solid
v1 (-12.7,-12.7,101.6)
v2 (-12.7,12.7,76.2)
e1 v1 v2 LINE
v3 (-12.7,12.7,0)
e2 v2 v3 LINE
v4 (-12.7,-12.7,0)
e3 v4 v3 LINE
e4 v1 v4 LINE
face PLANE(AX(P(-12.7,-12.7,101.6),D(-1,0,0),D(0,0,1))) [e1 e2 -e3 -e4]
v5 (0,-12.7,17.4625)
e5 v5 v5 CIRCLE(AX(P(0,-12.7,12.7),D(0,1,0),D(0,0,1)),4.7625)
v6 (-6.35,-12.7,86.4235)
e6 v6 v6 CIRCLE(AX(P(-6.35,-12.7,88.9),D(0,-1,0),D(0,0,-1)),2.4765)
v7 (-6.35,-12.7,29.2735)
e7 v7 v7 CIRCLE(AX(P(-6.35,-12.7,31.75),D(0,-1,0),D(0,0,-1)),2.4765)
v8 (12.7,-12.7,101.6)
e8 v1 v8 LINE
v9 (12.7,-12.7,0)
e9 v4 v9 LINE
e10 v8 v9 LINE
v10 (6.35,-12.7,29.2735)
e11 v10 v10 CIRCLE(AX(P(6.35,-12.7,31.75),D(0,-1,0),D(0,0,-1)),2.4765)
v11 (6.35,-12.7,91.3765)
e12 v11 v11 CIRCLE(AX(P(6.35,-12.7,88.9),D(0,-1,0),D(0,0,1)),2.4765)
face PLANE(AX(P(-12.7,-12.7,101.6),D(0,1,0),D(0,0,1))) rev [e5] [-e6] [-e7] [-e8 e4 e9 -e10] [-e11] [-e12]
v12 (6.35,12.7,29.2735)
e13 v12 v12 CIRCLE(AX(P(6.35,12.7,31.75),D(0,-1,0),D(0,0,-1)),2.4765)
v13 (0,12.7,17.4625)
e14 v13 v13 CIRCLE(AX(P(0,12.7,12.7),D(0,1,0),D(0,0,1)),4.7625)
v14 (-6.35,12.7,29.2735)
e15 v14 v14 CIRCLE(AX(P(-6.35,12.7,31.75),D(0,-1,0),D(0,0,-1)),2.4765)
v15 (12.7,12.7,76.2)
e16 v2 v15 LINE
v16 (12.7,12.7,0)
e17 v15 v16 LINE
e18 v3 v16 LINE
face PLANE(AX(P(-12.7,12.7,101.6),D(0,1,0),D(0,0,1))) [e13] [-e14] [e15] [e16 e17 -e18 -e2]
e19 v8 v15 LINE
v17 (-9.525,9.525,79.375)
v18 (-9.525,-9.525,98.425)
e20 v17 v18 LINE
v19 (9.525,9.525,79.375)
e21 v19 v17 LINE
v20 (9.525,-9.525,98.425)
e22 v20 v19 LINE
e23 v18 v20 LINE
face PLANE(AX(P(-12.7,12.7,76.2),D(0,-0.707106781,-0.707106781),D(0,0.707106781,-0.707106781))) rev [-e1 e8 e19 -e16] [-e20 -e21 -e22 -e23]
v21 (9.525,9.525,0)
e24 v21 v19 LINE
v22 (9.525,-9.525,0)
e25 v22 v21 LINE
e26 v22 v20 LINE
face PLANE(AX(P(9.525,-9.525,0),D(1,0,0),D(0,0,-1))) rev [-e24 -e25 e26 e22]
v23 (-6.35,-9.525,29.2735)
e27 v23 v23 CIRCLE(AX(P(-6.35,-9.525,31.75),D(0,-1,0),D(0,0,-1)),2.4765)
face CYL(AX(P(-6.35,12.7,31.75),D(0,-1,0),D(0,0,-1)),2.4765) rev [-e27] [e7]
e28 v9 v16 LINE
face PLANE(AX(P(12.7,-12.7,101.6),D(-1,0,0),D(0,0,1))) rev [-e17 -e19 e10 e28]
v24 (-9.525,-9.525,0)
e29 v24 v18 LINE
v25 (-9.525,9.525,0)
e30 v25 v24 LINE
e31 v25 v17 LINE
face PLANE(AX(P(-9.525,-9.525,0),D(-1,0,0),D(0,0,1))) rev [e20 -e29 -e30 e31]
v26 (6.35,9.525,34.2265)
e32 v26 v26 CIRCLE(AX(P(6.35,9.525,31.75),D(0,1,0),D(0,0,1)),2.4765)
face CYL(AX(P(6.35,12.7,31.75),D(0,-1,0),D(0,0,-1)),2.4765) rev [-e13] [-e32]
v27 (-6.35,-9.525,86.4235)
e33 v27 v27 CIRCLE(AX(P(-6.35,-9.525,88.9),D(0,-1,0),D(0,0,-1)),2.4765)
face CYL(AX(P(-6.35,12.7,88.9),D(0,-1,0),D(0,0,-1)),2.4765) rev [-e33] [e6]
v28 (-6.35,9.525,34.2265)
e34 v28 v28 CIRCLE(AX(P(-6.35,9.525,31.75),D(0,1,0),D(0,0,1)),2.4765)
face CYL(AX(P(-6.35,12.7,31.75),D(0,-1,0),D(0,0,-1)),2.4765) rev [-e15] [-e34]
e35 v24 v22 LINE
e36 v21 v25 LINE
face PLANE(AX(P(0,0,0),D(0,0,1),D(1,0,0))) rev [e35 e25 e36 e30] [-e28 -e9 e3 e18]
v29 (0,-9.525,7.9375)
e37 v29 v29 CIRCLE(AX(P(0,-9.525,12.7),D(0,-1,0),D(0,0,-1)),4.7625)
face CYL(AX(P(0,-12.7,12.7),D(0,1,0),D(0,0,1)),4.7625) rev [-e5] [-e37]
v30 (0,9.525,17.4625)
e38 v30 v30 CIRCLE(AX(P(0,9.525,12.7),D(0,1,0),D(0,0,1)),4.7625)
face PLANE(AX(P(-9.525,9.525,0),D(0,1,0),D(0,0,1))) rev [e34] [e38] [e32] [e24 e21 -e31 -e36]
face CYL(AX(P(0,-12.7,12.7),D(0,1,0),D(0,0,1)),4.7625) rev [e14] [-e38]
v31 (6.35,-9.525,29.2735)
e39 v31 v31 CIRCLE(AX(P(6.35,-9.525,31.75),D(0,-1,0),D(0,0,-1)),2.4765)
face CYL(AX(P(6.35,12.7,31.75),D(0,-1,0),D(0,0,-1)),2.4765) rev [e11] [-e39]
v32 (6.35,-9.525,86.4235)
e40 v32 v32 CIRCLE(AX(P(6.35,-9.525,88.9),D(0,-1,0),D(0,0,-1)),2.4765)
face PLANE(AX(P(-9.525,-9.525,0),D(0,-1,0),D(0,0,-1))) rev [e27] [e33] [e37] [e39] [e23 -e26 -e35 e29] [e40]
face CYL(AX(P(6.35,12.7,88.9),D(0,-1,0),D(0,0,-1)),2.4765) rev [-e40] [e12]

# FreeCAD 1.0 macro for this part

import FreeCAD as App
import Part
import Sketcher
from FreeCAD import Vector
Q = App.Units.Quantity


def add_polygon(sketch, points):
    """Adds a closed chain of lines whose ends are joined by coincident constraints."""
    first, n = sketch.GeometryCount, len(points)
    for a, b in zip(points, points[1:] + points[:1]):
        sketch.addGeometry(Part.LineSegment(App.Vector(*a, 0), App.Vector(*b, 0)), False)
    for i in range(n):
        sketch.addConstraint(Sketcher.Constraint("Coincident", first + i, 2, first + (i + 1) % n, 1))

doc = App.newDocument("Part")
body = doc.addObject("PartDesign::Body", "Body")

# Sketch on XY plane
sketch1 = body.newObject("Sketcher::SketchObject", "Sketch")
sketch1.AttachmentSupport = (doc.getObject("XY_Plane"), [""])
sketch1.MapMode = "FlatFace"
add_polygon(sketch1, [(-12.7, 12.7), (-12.7, -12.7), (12.7, -12.7), (12.7, 12.7)])  # lines 0-3
sketch1.addConstraint([
    Sketcher.Constraint("Vertical", 0),
    Sketcher.Constraint("Horizontal", 1),
    Sketcher.Constraint("Vertical", 2),
    Sketcher.Constraint("Horizontal", 3),
    Sketcher.Constraint("Symmetric", 0, 2, 2, 2, -1, 1),
    Sketcher.Constraint("Equal", 3, 0),
    Sketcher.Constraint("DistanceX", 1, 1, 1, 2, Q("1 in")),
])
pad1 = body.newObject("PartDesign::Pad", "Pad")
pad1.Profile = sketch1
pad1.Length = Q("4 in")

# Sketch on XY plane
sketch2 = body.newObject("Sketcher::SketchObject", "Sketch001")
sketch2.AttachmentSupport = (doc.getObject("XY_Plane"), [""])
sketch2.MapMode = "FlatFace"
sketch2.AttachmentOffset = App.Placement(Vector(0, 0, 4 * 25.4), App.Rotation())
add_polygon(sketch2, [(-9.525, 9.525), (-9.525, -9.525), (9.525, -9.525), (9.525, 9.525)])  # lines 0-3
sketch2.addConstraint([
    Sketcher.Constraint("Vertical", 0),
    Sketcher.Constraint("Horizontal", 1),
    Sketcher.Constraint("Vertical", 2),
    Sketcher.Constraint("Horizontal", 3),
    Sketcher.Constraint("Symmetric", 0, 2, 2, 2, -1, 1),
    Sketcher.Constraint("Equal", 3, 0),
    Sketcher.Constraint("DistanceX", 1, 1, 1, 2, Q("0.75 in")),
])
pocket1 = body.newObject("PartDesign::Pocket", "Pocket")
pocket1.Profile = sketch2
pocket1.Type = "ThroughAll"

# Sketch on YZ plane
sketch3 = body.newObject("Sketcher::SketchObject", "Sketch002")
sketch3.AttachmentSupport = (doc.getObject("YZ_Plane"), [""])
sketch3.MapMode = "FlatFace"
sketch3.AttachmentOffset = App.Placement(Vector(0, 0, 0.5 * 25.4), App.Rotation())
add_polygon(sketch3, [(12.7, 76.2), (12.7, 101.6), (-12.7, 101.6)])  # lines 0-2
sketch3.addConstraint([
    Sketcher.Constraint("Vertical", 0),
    Sketcher.Constraint("Horizontal", 1),
    Sketcher.Constraint("Equal", 1, 0),
    Sketcher.Constraint("DistanceX", 1, 2, 1, 1, Q("1 in")),
    Sketcher.Constraint("DistanceY", -1, 1, 0, 2, Q("4 in")),
    Sketcher.Constraint("DistanceX", -1, 1, 0, 2, Q("0.5 in")),
])
pocket2 = body.newObject("PartDesign::Pocket", "Pocket001")
pocket2.Profile = sketch3
pocket2.Type = "ThroughAll"

# Sketch on XZ plane
sketch4 = body.newObject("Sketcher::SketchObject", "Sketch003")
sketch4.AttachmentSupport = (doc.getObject("XZ_Plane"), [""])
sketch4.MapMode = "FlatFace"
sketch4.AttachmentOffset = App.Placement(Vector(0, 0, 0.5 * 25.4), App.Rotation())
sketch4.addGeometry([
    Part.Circle(Vector(-6.35, 88.9, 0), Vector(0, 0, 1), 2.4765),
    Part.Circle(Vector(6.35, 88.9, 0), Vector(0, 0, 1), 2.4765),
], False)
sketch4.addConstraint([
    Sketcher.Constraint("Equal", 0, 1),
    Sketcher.Constraint("Symmetric", 0, 3, 1, 3, -2),
    Sketcher.Constraint("Diameter", 0, Q("0.195 in")),
    Sketcher.Constraint("DistanceY", -1, 1, 0, 3, Q("3.5 in")),
    Sketcher.Constraint("DistanceX", 0, 3, 1, 3, Q("0.5 in")),
])
pocket3 = body.newObject("PartDesign::Pocket", "Pocket002")
pocket3.Profile = sketch4
pocket3.Type = "ThroughAll"

# Sketch on XZ plane
sketch5 = body.newObject("Sketcher::SketchObject", "Sketch004")
sketch5.AttachmentSupport = (doc.getObject("XZ_Plane"), [""])
sketch5.MapMode = "FlatFace"
sketch5.AttachmentOffset = App.Placement(Vector(0, 0, -0.5 * 25.4), App.Rotation())
sketch5.addGeometry(Part.Circle(Vector(0, 12.7, 0), Vector(0, 0, 1), 4.7625), False)
sketch5.addConstraint([
    Sketcher.Constraint("PointOnObject", 0, 3, -2),
    Sketcher.Constraint("Diameter", 0, Q("0.375 in")),
    Sketcher.Constraint("DistanceY", -1, 1, 0, 3, Q("0.5 in")),
])
pocket4 = body.newObject("PartDesign::Pocket", "Pocket003")
pocket4.Profile = sketch5
pocket4.Type = "ThroughAll"
pocket4.Reversed = True

# Sketch on XZ plane
sketch6 = body.newObject("Sketcher::SketchObject", "Sketch005")
sketch6.AttachmentSupport = (doc.getObject("XZ_Plane"), [""])
sketch6.MapMode = "FlatFace"
sketch6.AttachmentOffset = App.Placement(Vector(0, 0, 0.5 * 25.4), App.Rotation())
sketch6.addGeometry([
    Part.Circle(Vector(6.35, 31.75, 0), Vector(0, 0, 1), 2.4765),
    Part.Circle(Vector(-6.35, 31.75, 0), Vector(0, 0, 1), 2.4765),
], False)
sketch6.addConstraint([
    Sketcher.Constraint("Equal", 0, 1),
    Sketcher.Constraint("Symmetric", 0, 3, 1, 3, -2),
    Sketcher.Constraint("Diameter", 0, Q("0.195 in")),
    Sketcher.Constraint("DistanceX", 1, 3, 0, 3, Q("0.5 in")),
    Sketcher.Constraint("DistanceY", -1, 1, 0, 3, Q("1.25 in")),
])
pocket5 = body.newObject("PartDesign::Pocket", "Pocket004")
pocket5.Profile = sketch6
pocket5.Type = "ThroughAll"

doc.recompute()
